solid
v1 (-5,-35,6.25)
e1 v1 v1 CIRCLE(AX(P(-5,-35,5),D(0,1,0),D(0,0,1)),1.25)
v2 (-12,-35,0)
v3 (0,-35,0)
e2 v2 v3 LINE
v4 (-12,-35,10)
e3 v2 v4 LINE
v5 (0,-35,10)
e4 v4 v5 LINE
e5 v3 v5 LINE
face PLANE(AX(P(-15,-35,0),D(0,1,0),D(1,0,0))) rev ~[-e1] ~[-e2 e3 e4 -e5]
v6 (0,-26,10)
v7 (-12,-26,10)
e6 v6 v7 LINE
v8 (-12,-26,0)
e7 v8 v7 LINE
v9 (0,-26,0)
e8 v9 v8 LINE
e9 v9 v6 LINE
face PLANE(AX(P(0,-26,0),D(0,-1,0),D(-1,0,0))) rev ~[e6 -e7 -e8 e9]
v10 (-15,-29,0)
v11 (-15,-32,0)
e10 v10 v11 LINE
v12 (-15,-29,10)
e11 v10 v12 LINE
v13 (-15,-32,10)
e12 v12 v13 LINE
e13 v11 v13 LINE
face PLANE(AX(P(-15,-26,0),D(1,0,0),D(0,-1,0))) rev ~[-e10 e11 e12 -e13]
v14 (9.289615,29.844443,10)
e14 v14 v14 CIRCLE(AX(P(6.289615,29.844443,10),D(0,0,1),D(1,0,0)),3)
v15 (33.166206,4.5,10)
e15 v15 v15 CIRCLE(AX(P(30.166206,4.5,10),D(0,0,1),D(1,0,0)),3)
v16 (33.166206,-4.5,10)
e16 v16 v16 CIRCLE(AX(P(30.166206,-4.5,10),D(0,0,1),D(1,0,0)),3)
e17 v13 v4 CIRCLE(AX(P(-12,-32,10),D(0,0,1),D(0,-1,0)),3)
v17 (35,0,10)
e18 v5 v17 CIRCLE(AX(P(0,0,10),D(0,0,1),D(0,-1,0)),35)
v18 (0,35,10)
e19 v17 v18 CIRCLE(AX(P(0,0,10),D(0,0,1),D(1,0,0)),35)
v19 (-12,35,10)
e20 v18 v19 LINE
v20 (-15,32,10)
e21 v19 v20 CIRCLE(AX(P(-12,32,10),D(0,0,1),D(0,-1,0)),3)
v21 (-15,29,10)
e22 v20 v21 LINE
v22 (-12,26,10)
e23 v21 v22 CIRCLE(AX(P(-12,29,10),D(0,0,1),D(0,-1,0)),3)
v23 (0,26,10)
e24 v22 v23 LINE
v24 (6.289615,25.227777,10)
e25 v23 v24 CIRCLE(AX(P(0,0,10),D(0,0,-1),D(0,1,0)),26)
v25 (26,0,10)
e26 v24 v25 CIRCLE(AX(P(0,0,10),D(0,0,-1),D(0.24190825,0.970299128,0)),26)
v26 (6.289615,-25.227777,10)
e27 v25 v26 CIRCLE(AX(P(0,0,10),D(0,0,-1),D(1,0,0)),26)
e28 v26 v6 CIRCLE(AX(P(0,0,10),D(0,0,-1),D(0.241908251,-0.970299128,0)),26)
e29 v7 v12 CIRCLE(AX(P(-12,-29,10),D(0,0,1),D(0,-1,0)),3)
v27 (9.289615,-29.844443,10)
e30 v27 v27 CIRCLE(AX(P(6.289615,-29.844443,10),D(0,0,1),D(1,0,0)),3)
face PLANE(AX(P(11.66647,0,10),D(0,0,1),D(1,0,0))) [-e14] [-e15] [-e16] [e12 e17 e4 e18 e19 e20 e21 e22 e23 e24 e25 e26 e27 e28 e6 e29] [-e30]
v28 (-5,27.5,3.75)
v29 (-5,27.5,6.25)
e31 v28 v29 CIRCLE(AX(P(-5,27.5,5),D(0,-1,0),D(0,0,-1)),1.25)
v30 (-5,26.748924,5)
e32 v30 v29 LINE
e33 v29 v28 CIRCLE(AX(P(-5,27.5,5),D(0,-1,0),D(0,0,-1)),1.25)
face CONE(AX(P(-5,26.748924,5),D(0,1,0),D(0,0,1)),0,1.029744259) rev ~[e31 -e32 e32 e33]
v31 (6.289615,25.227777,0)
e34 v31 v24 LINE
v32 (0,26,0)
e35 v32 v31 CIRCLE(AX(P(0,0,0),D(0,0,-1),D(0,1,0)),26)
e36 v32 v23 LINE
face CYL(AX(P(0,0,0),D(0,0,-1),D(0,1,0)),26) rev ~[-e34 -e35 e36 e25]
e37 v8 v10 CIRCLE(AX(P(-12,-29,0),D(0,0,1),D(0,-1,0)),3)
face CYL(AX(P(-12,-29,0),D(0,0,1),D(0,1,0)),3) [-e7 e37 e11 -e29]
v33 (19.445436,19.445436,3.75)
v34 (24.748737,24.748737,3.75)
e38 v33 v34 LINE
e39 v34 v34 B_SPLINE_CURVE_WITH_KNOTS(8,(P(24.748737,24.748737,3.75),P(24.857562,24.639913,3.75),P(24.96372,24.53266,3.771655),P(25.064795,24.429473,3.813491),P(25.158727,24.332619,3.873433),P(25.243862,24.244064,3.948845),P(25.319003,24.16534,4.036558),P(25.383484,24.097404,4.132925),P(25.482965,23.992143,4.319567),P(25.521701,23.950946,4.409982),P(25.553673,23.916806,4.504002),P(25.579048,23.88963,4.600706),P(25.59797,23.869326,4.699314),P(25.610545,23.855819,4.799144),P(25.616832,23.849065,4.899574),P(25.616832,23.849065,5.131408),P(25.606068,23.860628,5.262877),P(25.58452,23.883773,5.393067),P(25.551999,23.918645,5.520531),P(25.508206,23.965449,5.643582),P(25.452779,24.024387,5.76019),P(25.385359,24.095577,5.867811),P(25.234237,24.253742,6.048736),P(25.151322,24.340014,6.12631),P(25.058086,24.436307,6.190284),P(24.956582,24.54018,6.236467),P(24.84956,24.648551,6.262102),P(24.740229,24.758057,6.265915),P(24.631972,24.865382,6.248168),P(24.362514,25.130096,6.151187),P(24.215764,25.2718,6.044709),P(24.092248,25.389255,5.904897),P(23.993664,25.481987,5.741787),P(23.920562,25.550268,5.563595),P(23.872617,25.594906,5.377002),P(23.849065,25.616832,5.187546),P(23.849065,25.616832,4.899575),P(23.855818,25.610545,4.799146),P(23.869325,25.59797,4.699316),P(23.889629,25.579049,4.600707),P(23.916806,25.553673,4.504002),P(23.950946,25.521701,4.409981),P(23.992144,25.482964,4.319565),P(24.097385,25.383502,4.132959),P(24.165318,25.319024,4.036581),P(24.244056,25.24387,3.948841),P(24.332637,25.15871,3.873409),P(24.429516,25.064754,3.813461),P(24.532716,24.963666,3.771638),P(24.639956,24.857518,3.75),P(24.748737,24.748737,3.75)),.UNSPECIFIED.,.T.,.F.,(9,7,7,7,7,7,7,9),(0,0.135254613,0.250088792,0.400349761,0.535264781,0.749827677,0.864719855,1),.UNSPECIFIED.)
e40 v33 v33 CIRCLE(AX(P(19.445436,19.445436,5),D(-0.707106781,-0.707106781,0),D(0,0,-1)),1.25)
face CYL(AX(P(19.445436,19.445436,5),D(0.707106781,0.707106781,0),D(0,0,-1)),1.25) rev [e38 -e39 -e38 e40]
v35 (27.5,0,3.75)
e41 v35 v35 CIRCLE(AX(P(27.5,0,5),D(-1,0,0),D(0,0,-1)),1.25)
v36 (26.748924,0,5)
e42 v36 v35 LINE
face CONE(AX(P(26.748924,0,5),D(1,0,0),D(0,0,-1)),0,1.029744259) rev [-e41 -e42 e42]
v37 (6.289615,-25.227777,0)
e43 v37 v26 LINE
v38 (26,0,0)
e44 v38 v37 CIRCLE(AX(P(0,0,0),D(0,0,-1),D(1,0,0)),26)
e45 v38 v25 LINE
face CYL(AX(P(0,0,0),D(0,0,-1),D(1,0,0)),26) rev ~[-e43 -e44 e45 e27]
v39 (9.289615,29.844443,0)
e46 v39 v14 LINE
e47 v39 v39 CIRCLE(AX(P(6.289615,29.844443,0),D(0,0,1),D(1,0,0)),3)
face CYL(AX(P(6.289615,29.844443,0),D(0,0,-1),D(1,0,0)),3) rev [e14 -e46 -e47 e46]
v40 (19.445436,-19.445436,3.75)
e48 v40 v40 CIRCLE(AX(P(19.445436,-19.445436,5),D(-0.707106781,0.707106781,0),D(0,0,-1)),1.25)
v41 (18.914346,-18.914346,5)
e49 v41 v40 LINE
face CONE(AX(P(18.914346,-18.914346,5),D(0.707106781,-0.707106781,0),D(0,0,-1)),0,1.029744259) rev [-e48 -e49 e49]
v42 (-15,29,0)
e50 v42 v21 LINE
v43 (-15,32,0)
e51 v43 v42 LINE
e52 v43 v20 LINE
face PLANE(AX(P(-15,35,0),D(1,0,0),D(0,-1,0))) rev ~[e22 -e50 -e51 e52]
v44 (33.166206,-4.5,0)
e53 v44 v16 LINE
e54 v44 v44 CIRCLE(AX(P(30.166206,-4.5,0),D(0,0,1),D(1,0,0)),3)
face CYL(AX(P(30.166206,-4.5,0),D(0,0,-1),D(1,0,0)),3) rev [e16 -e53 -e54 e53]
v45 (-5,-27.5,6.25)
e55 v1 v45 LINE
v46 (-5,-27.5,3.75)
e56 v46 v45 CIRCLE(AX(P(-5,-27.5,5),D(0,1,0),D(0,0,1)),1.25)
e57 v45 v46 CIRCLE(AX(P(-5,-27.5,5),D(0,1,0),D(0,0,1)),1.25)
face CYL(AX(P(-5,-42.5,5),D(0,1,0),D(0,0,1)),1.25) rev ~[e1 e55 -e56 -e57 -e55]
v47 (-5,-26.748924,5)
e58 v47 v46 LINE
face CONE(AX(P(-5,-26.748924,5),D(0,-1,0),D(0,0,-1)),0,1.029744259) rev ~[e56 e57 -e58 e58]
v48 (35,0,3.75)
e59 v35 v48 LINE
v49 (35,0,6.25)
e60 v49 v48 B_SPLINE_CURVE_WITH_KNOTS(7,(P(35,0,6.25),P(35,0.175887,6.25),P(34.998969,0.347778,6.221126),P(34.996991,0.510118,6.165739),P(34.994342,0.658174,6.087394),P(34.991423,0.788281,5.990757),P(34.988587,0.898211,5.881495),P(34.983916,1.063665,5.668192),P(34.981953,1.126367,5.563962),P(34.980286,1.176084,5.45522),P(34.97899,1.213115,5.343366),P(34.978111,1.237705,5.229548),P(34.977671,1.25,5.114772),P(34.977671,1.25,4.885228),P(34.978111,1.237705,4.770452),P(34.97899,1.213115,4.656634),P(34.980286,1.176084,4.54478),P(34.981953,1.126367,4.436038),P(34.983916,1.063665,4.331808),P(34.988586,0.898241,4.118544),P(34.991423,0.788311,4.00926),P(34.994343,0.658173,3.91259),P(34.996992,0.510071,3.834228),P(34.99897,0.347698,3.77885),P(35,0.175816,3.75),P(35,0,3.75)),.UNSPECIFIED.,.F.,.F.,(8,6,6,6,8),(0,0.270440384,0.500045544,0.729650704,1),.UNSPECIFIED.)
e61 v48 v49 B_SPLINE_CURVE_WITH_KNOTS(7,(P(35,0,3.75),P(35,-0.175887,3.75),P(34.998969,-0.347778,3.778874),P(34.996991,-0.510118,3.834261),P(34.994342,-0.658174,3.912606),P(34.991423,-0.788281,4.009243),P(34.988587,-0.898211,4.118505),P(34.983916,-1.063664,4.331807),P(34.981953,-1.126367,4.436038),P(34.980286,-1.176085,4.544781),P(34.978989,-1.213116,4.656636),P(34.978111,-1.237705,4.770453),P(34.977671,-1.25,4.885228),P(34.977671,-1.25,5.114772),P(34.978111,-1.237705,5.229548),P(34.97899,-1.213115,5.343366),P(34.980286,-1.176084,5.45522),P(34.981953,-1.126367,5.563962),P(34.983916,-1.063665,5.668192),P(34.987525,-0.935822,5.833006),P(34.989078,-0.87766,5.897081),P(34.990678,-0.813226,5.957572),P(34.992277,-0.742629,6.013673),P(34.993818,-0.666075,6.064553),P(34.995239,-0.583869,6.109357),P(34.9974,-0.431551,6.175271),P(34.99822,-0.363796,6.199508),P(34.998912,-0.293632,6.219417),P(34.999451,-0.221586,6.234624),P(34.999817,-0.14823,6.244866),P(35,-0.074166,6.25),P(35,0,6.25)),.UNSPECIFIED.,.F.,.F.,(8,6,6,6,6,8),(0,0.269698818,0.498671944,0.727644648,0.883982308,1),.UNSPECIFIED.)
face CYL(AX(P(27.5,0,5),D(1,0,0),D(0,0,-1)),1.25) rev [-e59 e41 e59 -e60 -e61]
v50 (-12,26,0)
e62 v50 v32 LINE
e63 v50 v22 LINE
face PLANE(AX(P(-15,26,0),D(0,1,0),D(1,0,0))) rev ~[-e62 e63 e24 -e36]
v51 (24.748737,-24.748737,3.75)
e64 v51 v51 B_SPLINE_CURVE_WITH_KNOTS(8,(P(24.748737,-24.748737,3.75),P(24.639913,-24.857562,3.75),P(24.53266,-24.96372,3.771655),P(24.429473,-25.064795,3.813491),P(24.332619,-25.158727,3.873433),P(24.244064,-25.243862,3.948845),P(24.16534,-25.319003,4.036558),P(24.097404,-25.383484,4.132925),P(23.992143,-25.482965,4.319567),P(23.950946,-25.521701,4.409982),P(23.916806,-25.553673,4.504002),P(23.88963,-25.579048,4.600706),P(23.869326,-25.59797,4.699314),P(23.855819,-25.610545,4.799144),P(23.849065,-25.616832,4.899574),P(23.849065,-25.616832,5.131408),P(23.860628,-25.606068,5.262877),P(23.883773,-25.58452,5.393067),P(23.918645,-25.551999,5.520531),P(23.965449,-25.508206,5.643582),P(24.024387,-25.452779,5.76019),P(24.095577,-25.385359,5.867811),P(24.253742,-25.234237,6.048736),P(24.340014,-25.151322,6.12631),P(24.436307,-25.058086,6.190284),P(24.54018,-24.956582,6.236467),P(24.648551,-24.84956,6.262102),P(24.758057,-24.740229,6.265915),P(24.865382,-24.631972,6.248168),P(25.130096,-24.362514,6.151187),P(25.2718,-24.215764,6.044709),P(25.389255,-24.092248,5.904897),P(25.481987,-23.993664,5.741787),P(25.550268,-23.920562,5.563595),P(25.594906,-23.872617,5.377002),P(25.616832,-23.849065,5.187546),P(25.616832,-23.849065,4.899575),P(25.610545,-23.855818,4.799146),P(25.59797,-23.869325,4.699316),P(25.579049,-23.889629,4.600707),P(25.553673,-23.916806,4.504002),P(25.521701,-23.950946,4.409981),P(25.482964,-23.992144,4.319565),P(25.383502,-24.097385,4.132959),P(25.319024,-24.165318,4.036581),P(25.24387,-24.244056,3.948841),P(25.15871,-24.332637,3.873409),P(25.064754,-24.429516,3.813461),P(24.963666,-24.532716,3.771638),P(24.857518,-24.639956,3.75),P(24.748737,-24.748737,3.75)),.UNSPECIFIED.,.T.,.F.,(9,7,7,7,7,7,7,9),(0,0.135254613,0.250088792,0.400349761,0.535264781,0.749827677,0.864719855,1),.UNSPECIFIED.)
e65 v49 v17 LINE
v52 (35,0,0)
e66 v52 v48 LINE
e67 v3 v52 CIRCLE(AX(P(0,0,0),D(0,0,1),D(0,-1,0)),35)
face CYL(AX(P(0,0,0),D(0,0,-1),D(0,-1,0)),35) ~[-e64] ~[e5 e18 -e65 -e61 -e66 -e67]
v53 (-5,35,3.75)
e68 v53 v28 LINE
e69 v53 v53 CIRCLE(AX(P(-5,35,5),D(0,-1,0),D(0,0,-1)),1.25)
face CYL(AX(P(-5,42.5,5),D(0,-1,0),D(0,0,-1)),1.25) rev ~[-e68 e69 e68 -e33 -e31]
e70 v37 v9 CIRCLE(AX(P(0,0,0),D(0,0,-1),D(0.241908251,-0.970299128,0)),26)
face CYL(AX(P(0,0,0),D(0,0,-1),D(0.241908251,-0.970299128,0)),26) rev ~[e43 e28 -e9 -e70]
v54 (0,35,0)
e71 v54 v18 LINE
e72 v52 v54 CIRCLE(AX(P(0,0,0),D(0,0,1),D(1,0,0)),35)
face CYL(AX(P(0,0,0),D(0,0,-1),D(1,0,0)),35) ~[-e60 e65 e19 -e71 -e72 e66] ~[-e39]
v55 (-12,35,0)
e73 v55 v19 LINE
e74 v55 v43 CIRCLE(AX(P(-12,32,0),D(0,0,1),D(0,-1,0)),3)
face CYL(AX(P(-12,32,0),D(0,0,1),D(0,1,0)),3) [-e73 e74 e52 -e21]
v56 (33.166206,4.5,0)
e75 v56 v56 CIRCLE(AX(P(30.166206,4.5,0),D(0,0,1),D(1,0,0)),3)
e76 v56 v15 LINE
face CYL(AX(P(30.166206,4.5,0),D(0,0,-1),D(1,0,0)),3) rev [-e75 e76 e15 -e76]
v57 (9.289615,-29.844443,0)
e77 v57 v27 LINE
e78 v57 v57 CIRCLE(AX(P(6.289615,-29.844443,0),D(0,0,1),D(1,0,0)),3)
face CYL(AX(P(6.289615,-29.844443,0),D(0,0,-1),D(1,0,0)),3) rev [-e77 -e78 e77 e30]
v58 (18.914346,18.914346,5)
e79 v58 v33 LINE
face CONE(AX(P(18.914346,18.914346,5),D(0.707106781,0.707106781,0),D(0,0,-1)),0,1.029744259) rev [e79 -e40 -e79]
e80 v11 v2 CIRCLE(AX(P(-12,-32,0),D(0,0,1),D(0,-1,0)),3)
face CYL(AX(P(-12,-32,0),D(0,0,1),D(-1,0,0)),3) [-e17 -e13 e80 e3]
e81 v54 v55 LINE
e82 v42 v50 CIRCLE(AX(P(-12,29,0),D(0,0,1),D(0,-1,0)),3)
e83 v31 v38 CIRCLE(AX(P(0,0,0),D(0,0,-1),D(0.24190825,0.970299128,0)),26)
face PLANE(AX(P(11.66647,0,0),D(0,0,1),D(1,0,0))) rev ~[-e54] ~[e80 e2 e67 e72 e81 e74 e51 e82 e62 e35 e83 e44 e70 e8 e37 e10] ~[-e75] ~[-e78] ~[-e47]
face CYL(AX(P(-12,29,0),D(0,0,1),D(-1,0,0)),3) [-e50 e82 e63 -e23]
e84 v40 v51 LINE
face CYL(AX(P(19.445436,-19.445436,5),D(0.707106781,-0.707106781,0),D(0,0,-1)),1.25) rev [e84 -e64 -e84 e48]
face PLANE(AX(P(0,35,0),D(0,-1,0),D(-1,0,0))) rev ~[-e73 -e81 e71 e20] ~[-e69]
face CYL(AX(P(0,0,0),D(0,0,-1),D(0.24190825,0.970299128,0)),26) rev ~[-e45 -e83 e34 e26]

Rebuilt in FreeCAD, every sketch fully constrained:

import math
import FreeCAD as App
import Part
import Sketcher
Q = App.Units.Quantity


def edges_at(feature, points):
    """Names of the edges that pass closest to the given points."""
    edges = feature.Shape.Edges
    near = lambda p: min(range(len(edges)), key=lambda i: edges[i].distToShape(Part.Vertex(*p))[0])
    return sorted({f"Edge{near(p) + 1}" for p in points})

doc = App.newDocument("Part")
body = doc.addObject("PartDesign::Body", "Body")

sketch1 = body.newObject("Sketcher::SketchObject", "Sketch")
sketch1.AttachmentSupport = (doc.getObject("XY_Plane"), [""])
sketch1.MapMode = "FlatFace"
sketch1.addGeometry(Part.ArcOfCircle(Part.Circle(App.Vector(0, 0, 0), App.Vector(0, 0, 1), 35), math.radians(0), math.radians(90)), False)
sketch1.addGeometry(Part.LineSegment(App.Vector(0, 35, 0), App.Vector(-15, 35, 0)), False)
sketch1.addGeometry(Part.LineSegment(App.Vector(-15, 35, 0), App.Vector(-15, 26, 0)), False)
sketch1.addGeometry(Part.LineSegment(App.Vector(-15, 26, 0), App.Vector(0, 26, 0)), False)
sketch1.addGeometry(Part.ArcOfCircle(Part.Circle(App.Vector(0, 0, 0), App.Vector(0, 0, 1), 26), math.radians(76.000806), math.radians(90)), False)
sketch1.addGeometry(Part.ArcOfCircle(Part.Circle(App.Vector(0, 0, 0), App.Vector(0, 0, 1), 26), math.radians(0), math.radians(76.000806)), False)
sketch1.addGeometry(Part.ArcOfCircle(Part.Circle(App.Vector(0, 0, 0), App.Vector(0, 0, 1), 26), math.radians(-76.000806), math.radians(0)), False)
sketch1.addGeometry(Part.ArcOfCircle(Part.Circle(App.Vector(0, 0, 0), App.Vector(0, 0, 1), 26), math.radians(-90), math.radians(-76.000806)), False)
sketch1.addGeometry(Part.LineSegment(App.Vector(0, -26, 0), App.Vector(-15, -26, 0)), False)
sketch1.addGeometry(Part.LineSegment(App.Vector(-15, -26, 0), App.Vector(-15, -35, 0)), False)
sketch1.addGeometry(Part.LineSegment(App.Vector(-15, -35, 0), App.Vector(0, -35, 0)), False)
sketch1.addGeometry(Part.ArcOfCircle(Part.Circle(App.Vector(0, 0, 0), App.Vector(0, 0, 1), 35), math.radians(-90), math.radians(0)), False)
sketch1.addGeometry(Part.Circle(App.Vector(6.289615, -29.844443, 0), App.Vector(0, 0, 1), 3), False)
sketch1.addGeometry(Part.Circle(App.Vector(30.166206, -4.5, 0), App.Vector(0, 0, 1), 3), False)
sketch1.addGeometry(Part.Circle(App.Vector(6.289615, 29.844443, 0), App.Vector(0, 0, 1), 3), False)
sketch1.addGeometry(Part.Circle(App.Vector(30.166206, 4.5, 0), App.Vector(0, 0, 1), 3), False)
sketch1.addConstraint(Sketcher.Constraint("Tangent", 0, 2, 1, 1))
sketch1.addConstraint(Sketcher.Constraint("Coincident", 1, 2, 2, 1))
sketch1.addConstraint(Sketcher.Constraint("Coincident", 2, 2, 3, 1))
sketch1.addConstraint(Sketcher.Constraint("Tangent", 3, 2, 4, 2))
sketch1.addConstraint(Sketcher.Constraint("Tangent", 4, 1, 5, 2))
sketch1.addConstraint(Sketcher.Constraint("Tangent", 5, 1, 6, 2))
sketch1.addConstraint(Sketcher.Constraint("Tangent", 6, 1, 7, 2))
sketch1.addConstraint(Sketcher.Constraint("Tangent", 7, 1, 8, 1))
sketch1.addConstraint(Sketcher.Constraint("Coincident", 8, 2, 9, 1))
sketch1.addConstraint(Sketcher.Constraint("Coincident", 9, 2, 10, 1))
sketch1.addConstraint(Sketcher.Constraint("Tangent", 10, 2, 11, 1))
sketch1.addConstraint(Sketcher.Constraint("Tangent", 11, 2, 0, 1))
sketch1.addConstraint(Sketcher.Constraint("Horizontal", 1))
sketch1.addConstraint(Sketcher.Constraint("Vertical", 2))
sketch1.addConstraint(Sketcher.Constraint("Horizontal", 3))
sketch1.addConstraint(Sketcher.Constraint("Horizontal", 8))
sketch1.addConstraint(Sketcher.Constraint("Vertical", 9))
sketch1.addConstraint(Sketcher.Constraint("Horizontal", 10))
sketch1.addConstraint(Sketcher.Constraint("Coincident", 0, 3, -1, 1))
sketch1.addConstraint(Sketcher.Constraint("Coincident", 4, 3, -1, 1))
sketch1.addConstraint(Sketcher.Constraint("Coincident", 6, 3, -1, 1))
sketch1.addConstraint(Sketcher.Constraint("Equal", 6, 7))
sketch1.addConstraint(Sketcher.Constraint("Equal", 0, 11))
sketch1.addConstraint(Sketcher.Constraint("Equal", 12, 13))
sketch1.addConstraint(Sketcher.Constraint("Equal", 13, 14))
sketch1.addConstraint(Sketcher.Constraint("Equal", 14, 15))
sketch1.addConstraint(Sketcher.Constraint("Symmetric", 12, 3, 14, 3, -1))
sketch1.addConstraint(Sketcher.Constraint("Symmetric", 13, 3, 15, 3, -1))
sketch1.addConstraint(Sketcher.Constraint("PointOnObject", 5, 1, -1))
sketch1.addConstraint(Sketcher.Constraint("PointOnObject", 11, 2, -1))
sketch1.addConstraint(Sketcher.Constraint("Vertical", 14, 3, 4, 1))
sketch1.addConstraint(Sketcher.Constraint("Vertical", 4, 1, 6, 1))
sketch1.addConstraint(Sketcher.Constraint("Vertical", 2, 2, 8, 2))
sketch1.addConstraint(Sketcher.Constraint("Diameter", 12, Q("6 mm")))
sketch1.addConstraint(Sketcher.Constraint("Radius", 0, Q("35 mm")))
sketch1.addConstraint(Sketcher.Constraint("Radius", 4, Q("26 mm")))
sketch1.addConstraint(Sketcher.Constraint("DistanceX", 1, 2, 1, 1, Q("15 mm")))
sketch1.addConstraint(Sketcher.Constraint("DistanceY", 13, 3, 15, 3, Q("9 mm")))
sketch1.addConstraint(Sketcher.Constraint("DistanceX", -1, 1, 12, 3, Q("6.289615 mm")))
sketch1.addConstraint(Sketcher.Constraint("DistanceY", 12, 3, -1, 1, Q("29.844443 mm")))
sketch1.addConstraint(Sketcher.Constraint("DistanceX", -1, 1, 13, 3, Q("30.166206 mm")))
pad1 = body.newObject("PartDesign::Pad", "Pad")
pad1.Profile = sketch1
pad1.Length = 10
doc.recompute()

fillet = body.newObject("PartDesign::Fillet", "Fillet")
fillet.Base = (pad1, edges_at(pad1, [
    (-15, 26, 5),
    (-15, 35, 5),
    (-15, -35, 5),
    (-15, -26, 5),
]))
fillet.Radius = 3

sketch2 = body.newObject("Sketcher::SketchObject", "Sketch001")
sketch2.AttachmentSupport = (doc.getObject("XZ_Plane"), [""])
sketch2.MapMode = "FlatFace"
sketch2.addGeometry(Part.LineSegment(App.Vector(26.748924, 5, 0), App.Vector(35, 5, 0)), False)
sketch2.addGeometry(Part.LineSegment(App.Vector(35, 5, 0), App.Vector(35, 3.75, 0)), False)
sketch2.addGeometry(Part.LineSegment(App.Vector(35, 3.75, 0), App.Vector(27.5, 3.75, 0)), False)
sketch2.addGeometry(Part.LineSegment(App.Vector(27.5, 3.75, 0), App.Vector(26.748924, 5, 0)), False)
sketch2.addGeometry(Part.LineSegment(App.Vector(35, 5, 0), App.Vector(26.748924, 5, 0)), True)
sketch2.addConstraint(Sketcher.Constraint("Coincident", 0, 2, 1, 1))
sketch2.addConstraint(Sketcher.Constraint("Coincident", 1, 2, 2, 1))
sketch2.addConstraint(Sketcher.Constraint("Coincident", 2, 2, 3, 1))
sketch2.addConstraint(Sketcher.Constraint("Coincident", 3, 2, 0, 1))
sketch2.addConstraint(Sketcher.Constraint("Horizontal", 0))
sketch2.addConstraint(Sketcher.Constraint("Vertical", 1))
sketch2.addConstraint(Sketcher.Constraint("Horizontal", 2))
sketch2.addConstraint(Sketcher.Constraint("Horizontal", 4))
sketch2.addConstraint(Sketcher.Constraint("Coincident", 4, 1, 0, 2))
sketch2.addConstraint(Sketcher.Constraint("Equal", 0, 4))
sketch2.addConstraint(Sketcher.Constraint("Angle", 3, Q("121 deg")))
sketch2.addConstraint(Sketcher.Constraint("DistanceX", 2, 2, 2, 1, Q("7.5 mm")))
sketch2.addConstraint(Sketcher.Constraint("DistanceX", -1, 1, 0, 2, Q("35 mm")))
sketch2.addConstraint(Sketcher.Constraint("DistanceY", -1, 1, 0, 2, Q("5 mm")))
sketch2.addConstraint(Sketcher.Constraint("DistanceY", 1, 2, 1, 1, Q("1.25 mm")))
groove = body.newObject("PartDesign::Groove", "Groove")
groove.Profile = sketch2
groove.ReferenceAxis = (sketch2, ["Axis0"])
groove.Angle = 360
doc.recompute()

polarpattern = body.newObject("PartDesign::PolarPattern", "PolarPattern")
polarpattern.Originals = [groove]
polarpattern.Axis = (doc.getObject("Z_Axis"), [""])
polarpattern.Angle = 45
polarpattern.Occurrences = 2
body.Tip = polarpattern
doc.recompute()

polarpattern2 = body.newObject("PartDesign::PolarPattern", "PolarPattern001")
polarpattern2.Originals = [groove]
polarpattern2.Axis = (doc.getObject("Z_Axis"), [""])
polarpattern2.Angle = 45
polarpattern2.Occurrences = 2
polarpattern2.Reversed = True
body.Tip = polarpattern2

sketch3 = body.newObject("Sketcher::SketchObject", "Sketch002")
sketch3.AttachmentSupport = (doc.getObject("XZ_Plane"), [""])
sketch3.MapMode = "FlatFace"
sketch3.AttachmentOffset = App.Placement(App.Vector(0, 0, 35), App.Rotation())
sketch3.addGeometry(Part.Circle(App.Vector(-5, 5, 0), App.Vector(0, 0, 1), 1.25), False)
sketch3.addConstraint(Sketcher.Constraint("Diameter", 0, Q("2.5 mm")))
sketch3.addConstraint(Sketcher.Constraint("DistanceX", 0, 3, -1, 1, Q("5 mm")))
sketch3.addConstraint(Sketcher.Constraint("DistanceY", -1, 1, 0, 3, Q("5 mm")))
doc.recompute()
hole = body.newObject("PartDesign::Hole", "Hole")
hole.Profile = sketch3
hole.ThreadType = "None"
hole.Diameter = 2.5
hole.DepthType = "Dimension"
hole.Depth = 7.5
hole.DrillPoint = "Angled"
hole.DrillPointAngle = 118

sketch4 = body.newObject("Sketcher::SketchObject", "Sketch003")
sketch4.AttachmentSupport = (doc.getObject("XZ_Plane"), [""])
sketch4.MapMode = "FlatFace"
sketch4.AttachmentOffset = App.Placement(App.Vector(0, 0, -35), App.Rotation())
sketch4.addGeometry(Part.Circle(App.Vector(-5, 5, 0), App.Vector(0, 0, 1), 1.25), False)
sketch4.addConstraint(Sketcher.Constraint("Diameter", 0, Q("2.5 mm")))
sketch4.addConstraint(Sketcher.Constraint("DistanceX", 0, 3, -1, 1, Q("5 mm")))
sketch4.addConstraint(Sketcher.Constraint("DistanceY", -1, 1, 0, 3, Q("5 mm")))
doc.recompute()
hole2 = body.newObject("PartDesign::Hole", "Hole001")
hole2.Profile = sketch4
hole2.ThreadType = "None"
hole2.Diameter = 2.5
hole2.DepthType = "Dimension"
hole2.Depth = 7.5
hole2.DrillPoint = "Angled"
hole2.DrillPointAngle = 118
hole2.Reversed = True

doc.recompute()
